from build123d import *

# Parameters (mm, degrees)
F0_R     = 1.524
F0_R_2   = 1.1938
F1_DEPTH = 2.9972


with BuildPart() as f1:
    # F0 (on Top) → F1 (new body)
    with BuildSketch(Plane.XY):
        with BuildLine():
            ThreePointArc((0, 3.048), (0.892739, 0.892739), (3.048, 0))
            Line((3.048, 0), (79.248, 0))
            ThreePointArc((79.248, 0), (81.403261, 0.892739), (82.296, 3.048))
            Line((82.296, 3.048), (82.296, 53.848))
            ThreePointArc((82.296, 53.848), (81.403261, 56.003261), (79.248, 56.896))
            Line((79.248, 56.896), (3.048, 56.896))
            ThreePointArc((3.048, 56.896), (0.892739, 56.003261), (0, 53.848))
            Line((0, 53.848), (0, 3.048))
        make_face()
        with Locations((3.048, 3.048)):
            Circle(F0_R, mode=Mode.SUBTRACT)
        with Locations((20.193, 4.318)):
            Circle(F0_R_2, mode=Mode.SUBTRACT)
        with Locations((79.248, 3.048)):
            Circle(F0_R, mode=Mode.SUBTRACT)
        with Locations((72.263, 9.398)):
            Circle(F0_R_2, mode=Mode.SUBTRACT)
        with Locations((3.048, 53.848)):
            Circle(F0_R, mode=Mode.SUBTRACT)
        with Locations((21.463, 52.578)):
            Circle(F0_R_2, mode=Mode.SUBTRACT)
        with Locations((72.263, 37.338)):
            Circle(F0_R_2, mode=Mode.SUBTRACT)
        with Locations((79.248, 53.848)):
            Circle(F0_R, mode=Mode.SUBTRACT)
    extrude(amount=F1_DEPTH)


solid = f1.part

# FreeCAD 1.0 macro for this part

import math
import FreeCAD as App
import Part
import Sketcher
from FreeCAD import Vector
Q = App.Units.Quantity

doc = App.newDocument("Part")
params = doc.addObject("Spreadsheet::Sheet", "Params")
for row, (alias, value) in enumerate([
    ("sketch1_diameter", "0.12 in"),
    ("sketch1_width", "3 in"),
    ("sketch1_height", "2 in"),
    ("sketch1_radius", "0.1200001 in"),
    ("sketch1_diameter2", "0.094 in"),
    ("pad1_length", "0.118 in"),
], start=1):
    params.set(f"A{row}", alias)
    params.set(f"B{row}", "=" + value)
    params.setAlias(f"B{row}", alias)

body = doc.addObject("PartDesign::Body", "Body")

# Sketch on XY plane
sketch1 = body.newObject("Sketcher::SketchObject", "Sketch")
sketch1.AttachmentSupport = (doc.getObject("XY_Plane"), [""])
sketch1.MapMode = "FlatFace"
sketch1.addGeometry(Part.ArcOfCircle(Part.Circle(Vector(3, 3, 0), Vector(0, 0, 1), 3), math.radians(-180), math.radians(-90)), False)
sketch1.addGeometry(Part.LineSegment(Vector(3, 0, 0), Vector(79.2, 0, 0)), False)
sketch1.addGeometry(Part.ArcOfCircle(Part.Circle(Vector(79.2, 3, 0), Vector(0, 0, 1), 3), math.radians(-90), math.radians(0)), False)
sketch1.addGeometry(Part.LineSegment(Vector(82.3, 3, 0), Vector(82.3, 53.8, 0)), False)
sketch1.addGeometry(Part.ArcOfCircle(Part.Circle(Vector(79.2, 53.8, 0), Vector(0, 0, 1), 3), math.radians(0), math.radians(90)), False)
sketch1.addGeometry(Part.LineSegment(Vector(79.2, 56.9, 0), Vector(3, 56.9, 0)), False)
sketch1.addGeometry(Part.ArcOfCircle(Part.Circle(Vector(3, 53.8, 0), Vector(0, 0, 1), 3), math.radians(90), math.radians(180)), False)
sketch1.addGeometry(Part.LineSegment(Vector(0, 53.8, 0), Vector(0, 3, 0)), False)
sketch1.addGeometry(Part.Circle(Vector(3, 3, 0), Vector(0, 0, 1), 1.5), False)
sketch1.addGeometry(Part.Circle(Vector(20.2, 4.3, 0), Vector(0, 0, 1), 1.2), False)
sketch1.addGeometry(Part.Circle(Vector(79.2, 3, 0), Vector(0, 0, 1), 1.5), False)
sketch1.addGeometry(Part.Circle(Vector(72.3, 9.4, 0), Vector(0, 0, 1), 1.2), False)
sketch1.addGeometry(Part.Circle(Vector(3, 53.8, 0), Vector(0, 0, 1), 1.5), False)
sketch1.addGeometry(Part.Circle(Vector(21.5, 52.6, 0), Vector(0, 0, 1), 1.2), False)
sketch1.addGeometry(Part.Circle(Vector(72.3, 37.3, 0), Vector(0, 0, 1), 1.2), False)
sketch1.addGeometry(Part.Circle(Vector(79.2, 53.8, 0), Vector(0, 0, 1), 1.5), False)
sketch1.addConstraint(Sketcher.Constraint("Tangent", 0, 2, 1, 1))
sketch1.addConstraint(Sketcher.Constraint("Tangent", 1, 2, 2, 1))
sketch1.addConstraint(Sketcher.Constraint("Tangent", 2, 2, 3, 1))
sketch1.addConstraint(Sketcher.Constraint("Tangent", 3, 2, 4, 1))
sketch1.addConstraint(Sketcher.Constraint("Tangent", 4, 2, 5, 1))
sketch1.addConstraint(Sketcher.Constraint("Tangent", 5, 2, 6, 1))
sketch1.addConstraint(Sketcher.Constraint("Tangent", 6, 2, 7, 1))
sketch1.addConstraint(Sketcher.Constraint("Tangent", 7, 2, 0, 1))
sketch1.addConstraint(Sketcher.Constraint("Horizontal", 1))
sketch1.addConstraint(Sketcher.Constraint("Vertical", 3))
sketch1.addConstraint(Sketcher.Constraint("Horizontal", 5))
sketch1.addConstraint(Sketcher.Constraint("Vertical", 7))
sketch1.addConstraint(Sketcher.Constraint("Coincident", 8, 3, 0, 3))
sketch1.addConstraint(Sketcher.Constraint("Coincident", 10, 3, 2, 3))
sketch1.addConstraint(Sketcher.Constraint("Coincident", 12, 3, 6, 3))
sketch1.addConstraint(Sketcher.Constraint("Coincident", 15, 3, 4, 3))
sketch1.addConstraint(Sketcher.Constraint("Equal", 0, 2))
sketch1.addConstraint(Sketcher.Constraint("Equal", 2, 4))
sketch1.addConstraint(Sketcher.Constraint("Equal", 4, 6))
sketch1.addConstraint(Sketcher.Constraint("Equal", 8, 10))
sketch1.addConstraint(Sketcher.Constraint("Equal", 9, 11))
sketch1.addConstraint(Sketcher.Constraint("Equal", 10, 12))
sketch1.addConstraint(Sketcher.Constraint("Equal", 11, 13))
sketch1.addConstraint(Sketcher.Constraint("Equal", 13, 14))
sketch1.addConstraint(Sketcher.Constraint("Equal", 12, 15))
sketch1.addConstraint(Sketcher.Constraint("PointOnObject", 0, 2, -1))
sketch1.addConstraint(Sketcher.Constraint("PointOnObject", 6, 2, -2))
sketch1.addConstraint(Sketcher.Constraint("Vertical", 11, 3, 14, 3))
sketch1.addConstraint(Sketcher.Constraint("Diameter", 8, Q("0.12 in")))
sketch1.addConstraint(Sketcher.Constraint("DistanceX", 1, 1, 1, 2, Q("3 in")))
sketch1.addConstraint(Sketcher.Constraint("DistanceY", 3, 1, 3, 2, Q("2 in")))
sketch1.addConstraint(Sketcher.Constraint("Radius", 0, Q("0.1200001 in")))
sketch1.addConstraint(Sketcher.Constraint("Diameter", 9, Q("0.094 in")))
sketch1.addConstraint(Sketcher.Constraint("DistanceX", 13, 3, 14, 3, Q("2 in")))
sketch1.addConstraint(Sketcher.Constraint("DistanceY", 9, 3, 11, 3, Q("0.2 in")))
sketch1.addConstraint(Sketcher.Constraint("DistanceY", 9, 3, 13, 3, Q("1.9 in")))
sketch1.addConstraint(Sketcher.Constraint("DistanceY", 11, 3, 14, 3, Q("1.1 in")))
sketch1.addConstraint(Sketcher.Constraint("DistanceY", -1, 1, 9, 3, Q("0.17 in")))
sketch1.addConstraint(Sketcher.Constraint("DistanceX", 9, 3, 11, 3, Q("2.05 in")))
sketch1.addConstraint(Sketcher.Constraint("DistanceX", -1, 1, 9, 3, Q("0.795 in")))
sketch1.setExpression("Constraints[28]", "Params.sketch1_diameter")
sketch1.setExpression("Constraints[29]", "Params.sketch1_width")
sketch1.setExpression("Constraints[30]", "Params.sketch1_height")
sketch1.setExpression("Constraints[31]", "Params.sketch1_radius")
sketch1.setExpression("Constraints[32]", "Params.sketch1_diameter2")
pad1 = body.newObject("PartDesign::Pad", "Pad")
pad1.Profile = sketch1
pad1.setExpression("Length", "Params.pad1_length")

doc.recompute()
